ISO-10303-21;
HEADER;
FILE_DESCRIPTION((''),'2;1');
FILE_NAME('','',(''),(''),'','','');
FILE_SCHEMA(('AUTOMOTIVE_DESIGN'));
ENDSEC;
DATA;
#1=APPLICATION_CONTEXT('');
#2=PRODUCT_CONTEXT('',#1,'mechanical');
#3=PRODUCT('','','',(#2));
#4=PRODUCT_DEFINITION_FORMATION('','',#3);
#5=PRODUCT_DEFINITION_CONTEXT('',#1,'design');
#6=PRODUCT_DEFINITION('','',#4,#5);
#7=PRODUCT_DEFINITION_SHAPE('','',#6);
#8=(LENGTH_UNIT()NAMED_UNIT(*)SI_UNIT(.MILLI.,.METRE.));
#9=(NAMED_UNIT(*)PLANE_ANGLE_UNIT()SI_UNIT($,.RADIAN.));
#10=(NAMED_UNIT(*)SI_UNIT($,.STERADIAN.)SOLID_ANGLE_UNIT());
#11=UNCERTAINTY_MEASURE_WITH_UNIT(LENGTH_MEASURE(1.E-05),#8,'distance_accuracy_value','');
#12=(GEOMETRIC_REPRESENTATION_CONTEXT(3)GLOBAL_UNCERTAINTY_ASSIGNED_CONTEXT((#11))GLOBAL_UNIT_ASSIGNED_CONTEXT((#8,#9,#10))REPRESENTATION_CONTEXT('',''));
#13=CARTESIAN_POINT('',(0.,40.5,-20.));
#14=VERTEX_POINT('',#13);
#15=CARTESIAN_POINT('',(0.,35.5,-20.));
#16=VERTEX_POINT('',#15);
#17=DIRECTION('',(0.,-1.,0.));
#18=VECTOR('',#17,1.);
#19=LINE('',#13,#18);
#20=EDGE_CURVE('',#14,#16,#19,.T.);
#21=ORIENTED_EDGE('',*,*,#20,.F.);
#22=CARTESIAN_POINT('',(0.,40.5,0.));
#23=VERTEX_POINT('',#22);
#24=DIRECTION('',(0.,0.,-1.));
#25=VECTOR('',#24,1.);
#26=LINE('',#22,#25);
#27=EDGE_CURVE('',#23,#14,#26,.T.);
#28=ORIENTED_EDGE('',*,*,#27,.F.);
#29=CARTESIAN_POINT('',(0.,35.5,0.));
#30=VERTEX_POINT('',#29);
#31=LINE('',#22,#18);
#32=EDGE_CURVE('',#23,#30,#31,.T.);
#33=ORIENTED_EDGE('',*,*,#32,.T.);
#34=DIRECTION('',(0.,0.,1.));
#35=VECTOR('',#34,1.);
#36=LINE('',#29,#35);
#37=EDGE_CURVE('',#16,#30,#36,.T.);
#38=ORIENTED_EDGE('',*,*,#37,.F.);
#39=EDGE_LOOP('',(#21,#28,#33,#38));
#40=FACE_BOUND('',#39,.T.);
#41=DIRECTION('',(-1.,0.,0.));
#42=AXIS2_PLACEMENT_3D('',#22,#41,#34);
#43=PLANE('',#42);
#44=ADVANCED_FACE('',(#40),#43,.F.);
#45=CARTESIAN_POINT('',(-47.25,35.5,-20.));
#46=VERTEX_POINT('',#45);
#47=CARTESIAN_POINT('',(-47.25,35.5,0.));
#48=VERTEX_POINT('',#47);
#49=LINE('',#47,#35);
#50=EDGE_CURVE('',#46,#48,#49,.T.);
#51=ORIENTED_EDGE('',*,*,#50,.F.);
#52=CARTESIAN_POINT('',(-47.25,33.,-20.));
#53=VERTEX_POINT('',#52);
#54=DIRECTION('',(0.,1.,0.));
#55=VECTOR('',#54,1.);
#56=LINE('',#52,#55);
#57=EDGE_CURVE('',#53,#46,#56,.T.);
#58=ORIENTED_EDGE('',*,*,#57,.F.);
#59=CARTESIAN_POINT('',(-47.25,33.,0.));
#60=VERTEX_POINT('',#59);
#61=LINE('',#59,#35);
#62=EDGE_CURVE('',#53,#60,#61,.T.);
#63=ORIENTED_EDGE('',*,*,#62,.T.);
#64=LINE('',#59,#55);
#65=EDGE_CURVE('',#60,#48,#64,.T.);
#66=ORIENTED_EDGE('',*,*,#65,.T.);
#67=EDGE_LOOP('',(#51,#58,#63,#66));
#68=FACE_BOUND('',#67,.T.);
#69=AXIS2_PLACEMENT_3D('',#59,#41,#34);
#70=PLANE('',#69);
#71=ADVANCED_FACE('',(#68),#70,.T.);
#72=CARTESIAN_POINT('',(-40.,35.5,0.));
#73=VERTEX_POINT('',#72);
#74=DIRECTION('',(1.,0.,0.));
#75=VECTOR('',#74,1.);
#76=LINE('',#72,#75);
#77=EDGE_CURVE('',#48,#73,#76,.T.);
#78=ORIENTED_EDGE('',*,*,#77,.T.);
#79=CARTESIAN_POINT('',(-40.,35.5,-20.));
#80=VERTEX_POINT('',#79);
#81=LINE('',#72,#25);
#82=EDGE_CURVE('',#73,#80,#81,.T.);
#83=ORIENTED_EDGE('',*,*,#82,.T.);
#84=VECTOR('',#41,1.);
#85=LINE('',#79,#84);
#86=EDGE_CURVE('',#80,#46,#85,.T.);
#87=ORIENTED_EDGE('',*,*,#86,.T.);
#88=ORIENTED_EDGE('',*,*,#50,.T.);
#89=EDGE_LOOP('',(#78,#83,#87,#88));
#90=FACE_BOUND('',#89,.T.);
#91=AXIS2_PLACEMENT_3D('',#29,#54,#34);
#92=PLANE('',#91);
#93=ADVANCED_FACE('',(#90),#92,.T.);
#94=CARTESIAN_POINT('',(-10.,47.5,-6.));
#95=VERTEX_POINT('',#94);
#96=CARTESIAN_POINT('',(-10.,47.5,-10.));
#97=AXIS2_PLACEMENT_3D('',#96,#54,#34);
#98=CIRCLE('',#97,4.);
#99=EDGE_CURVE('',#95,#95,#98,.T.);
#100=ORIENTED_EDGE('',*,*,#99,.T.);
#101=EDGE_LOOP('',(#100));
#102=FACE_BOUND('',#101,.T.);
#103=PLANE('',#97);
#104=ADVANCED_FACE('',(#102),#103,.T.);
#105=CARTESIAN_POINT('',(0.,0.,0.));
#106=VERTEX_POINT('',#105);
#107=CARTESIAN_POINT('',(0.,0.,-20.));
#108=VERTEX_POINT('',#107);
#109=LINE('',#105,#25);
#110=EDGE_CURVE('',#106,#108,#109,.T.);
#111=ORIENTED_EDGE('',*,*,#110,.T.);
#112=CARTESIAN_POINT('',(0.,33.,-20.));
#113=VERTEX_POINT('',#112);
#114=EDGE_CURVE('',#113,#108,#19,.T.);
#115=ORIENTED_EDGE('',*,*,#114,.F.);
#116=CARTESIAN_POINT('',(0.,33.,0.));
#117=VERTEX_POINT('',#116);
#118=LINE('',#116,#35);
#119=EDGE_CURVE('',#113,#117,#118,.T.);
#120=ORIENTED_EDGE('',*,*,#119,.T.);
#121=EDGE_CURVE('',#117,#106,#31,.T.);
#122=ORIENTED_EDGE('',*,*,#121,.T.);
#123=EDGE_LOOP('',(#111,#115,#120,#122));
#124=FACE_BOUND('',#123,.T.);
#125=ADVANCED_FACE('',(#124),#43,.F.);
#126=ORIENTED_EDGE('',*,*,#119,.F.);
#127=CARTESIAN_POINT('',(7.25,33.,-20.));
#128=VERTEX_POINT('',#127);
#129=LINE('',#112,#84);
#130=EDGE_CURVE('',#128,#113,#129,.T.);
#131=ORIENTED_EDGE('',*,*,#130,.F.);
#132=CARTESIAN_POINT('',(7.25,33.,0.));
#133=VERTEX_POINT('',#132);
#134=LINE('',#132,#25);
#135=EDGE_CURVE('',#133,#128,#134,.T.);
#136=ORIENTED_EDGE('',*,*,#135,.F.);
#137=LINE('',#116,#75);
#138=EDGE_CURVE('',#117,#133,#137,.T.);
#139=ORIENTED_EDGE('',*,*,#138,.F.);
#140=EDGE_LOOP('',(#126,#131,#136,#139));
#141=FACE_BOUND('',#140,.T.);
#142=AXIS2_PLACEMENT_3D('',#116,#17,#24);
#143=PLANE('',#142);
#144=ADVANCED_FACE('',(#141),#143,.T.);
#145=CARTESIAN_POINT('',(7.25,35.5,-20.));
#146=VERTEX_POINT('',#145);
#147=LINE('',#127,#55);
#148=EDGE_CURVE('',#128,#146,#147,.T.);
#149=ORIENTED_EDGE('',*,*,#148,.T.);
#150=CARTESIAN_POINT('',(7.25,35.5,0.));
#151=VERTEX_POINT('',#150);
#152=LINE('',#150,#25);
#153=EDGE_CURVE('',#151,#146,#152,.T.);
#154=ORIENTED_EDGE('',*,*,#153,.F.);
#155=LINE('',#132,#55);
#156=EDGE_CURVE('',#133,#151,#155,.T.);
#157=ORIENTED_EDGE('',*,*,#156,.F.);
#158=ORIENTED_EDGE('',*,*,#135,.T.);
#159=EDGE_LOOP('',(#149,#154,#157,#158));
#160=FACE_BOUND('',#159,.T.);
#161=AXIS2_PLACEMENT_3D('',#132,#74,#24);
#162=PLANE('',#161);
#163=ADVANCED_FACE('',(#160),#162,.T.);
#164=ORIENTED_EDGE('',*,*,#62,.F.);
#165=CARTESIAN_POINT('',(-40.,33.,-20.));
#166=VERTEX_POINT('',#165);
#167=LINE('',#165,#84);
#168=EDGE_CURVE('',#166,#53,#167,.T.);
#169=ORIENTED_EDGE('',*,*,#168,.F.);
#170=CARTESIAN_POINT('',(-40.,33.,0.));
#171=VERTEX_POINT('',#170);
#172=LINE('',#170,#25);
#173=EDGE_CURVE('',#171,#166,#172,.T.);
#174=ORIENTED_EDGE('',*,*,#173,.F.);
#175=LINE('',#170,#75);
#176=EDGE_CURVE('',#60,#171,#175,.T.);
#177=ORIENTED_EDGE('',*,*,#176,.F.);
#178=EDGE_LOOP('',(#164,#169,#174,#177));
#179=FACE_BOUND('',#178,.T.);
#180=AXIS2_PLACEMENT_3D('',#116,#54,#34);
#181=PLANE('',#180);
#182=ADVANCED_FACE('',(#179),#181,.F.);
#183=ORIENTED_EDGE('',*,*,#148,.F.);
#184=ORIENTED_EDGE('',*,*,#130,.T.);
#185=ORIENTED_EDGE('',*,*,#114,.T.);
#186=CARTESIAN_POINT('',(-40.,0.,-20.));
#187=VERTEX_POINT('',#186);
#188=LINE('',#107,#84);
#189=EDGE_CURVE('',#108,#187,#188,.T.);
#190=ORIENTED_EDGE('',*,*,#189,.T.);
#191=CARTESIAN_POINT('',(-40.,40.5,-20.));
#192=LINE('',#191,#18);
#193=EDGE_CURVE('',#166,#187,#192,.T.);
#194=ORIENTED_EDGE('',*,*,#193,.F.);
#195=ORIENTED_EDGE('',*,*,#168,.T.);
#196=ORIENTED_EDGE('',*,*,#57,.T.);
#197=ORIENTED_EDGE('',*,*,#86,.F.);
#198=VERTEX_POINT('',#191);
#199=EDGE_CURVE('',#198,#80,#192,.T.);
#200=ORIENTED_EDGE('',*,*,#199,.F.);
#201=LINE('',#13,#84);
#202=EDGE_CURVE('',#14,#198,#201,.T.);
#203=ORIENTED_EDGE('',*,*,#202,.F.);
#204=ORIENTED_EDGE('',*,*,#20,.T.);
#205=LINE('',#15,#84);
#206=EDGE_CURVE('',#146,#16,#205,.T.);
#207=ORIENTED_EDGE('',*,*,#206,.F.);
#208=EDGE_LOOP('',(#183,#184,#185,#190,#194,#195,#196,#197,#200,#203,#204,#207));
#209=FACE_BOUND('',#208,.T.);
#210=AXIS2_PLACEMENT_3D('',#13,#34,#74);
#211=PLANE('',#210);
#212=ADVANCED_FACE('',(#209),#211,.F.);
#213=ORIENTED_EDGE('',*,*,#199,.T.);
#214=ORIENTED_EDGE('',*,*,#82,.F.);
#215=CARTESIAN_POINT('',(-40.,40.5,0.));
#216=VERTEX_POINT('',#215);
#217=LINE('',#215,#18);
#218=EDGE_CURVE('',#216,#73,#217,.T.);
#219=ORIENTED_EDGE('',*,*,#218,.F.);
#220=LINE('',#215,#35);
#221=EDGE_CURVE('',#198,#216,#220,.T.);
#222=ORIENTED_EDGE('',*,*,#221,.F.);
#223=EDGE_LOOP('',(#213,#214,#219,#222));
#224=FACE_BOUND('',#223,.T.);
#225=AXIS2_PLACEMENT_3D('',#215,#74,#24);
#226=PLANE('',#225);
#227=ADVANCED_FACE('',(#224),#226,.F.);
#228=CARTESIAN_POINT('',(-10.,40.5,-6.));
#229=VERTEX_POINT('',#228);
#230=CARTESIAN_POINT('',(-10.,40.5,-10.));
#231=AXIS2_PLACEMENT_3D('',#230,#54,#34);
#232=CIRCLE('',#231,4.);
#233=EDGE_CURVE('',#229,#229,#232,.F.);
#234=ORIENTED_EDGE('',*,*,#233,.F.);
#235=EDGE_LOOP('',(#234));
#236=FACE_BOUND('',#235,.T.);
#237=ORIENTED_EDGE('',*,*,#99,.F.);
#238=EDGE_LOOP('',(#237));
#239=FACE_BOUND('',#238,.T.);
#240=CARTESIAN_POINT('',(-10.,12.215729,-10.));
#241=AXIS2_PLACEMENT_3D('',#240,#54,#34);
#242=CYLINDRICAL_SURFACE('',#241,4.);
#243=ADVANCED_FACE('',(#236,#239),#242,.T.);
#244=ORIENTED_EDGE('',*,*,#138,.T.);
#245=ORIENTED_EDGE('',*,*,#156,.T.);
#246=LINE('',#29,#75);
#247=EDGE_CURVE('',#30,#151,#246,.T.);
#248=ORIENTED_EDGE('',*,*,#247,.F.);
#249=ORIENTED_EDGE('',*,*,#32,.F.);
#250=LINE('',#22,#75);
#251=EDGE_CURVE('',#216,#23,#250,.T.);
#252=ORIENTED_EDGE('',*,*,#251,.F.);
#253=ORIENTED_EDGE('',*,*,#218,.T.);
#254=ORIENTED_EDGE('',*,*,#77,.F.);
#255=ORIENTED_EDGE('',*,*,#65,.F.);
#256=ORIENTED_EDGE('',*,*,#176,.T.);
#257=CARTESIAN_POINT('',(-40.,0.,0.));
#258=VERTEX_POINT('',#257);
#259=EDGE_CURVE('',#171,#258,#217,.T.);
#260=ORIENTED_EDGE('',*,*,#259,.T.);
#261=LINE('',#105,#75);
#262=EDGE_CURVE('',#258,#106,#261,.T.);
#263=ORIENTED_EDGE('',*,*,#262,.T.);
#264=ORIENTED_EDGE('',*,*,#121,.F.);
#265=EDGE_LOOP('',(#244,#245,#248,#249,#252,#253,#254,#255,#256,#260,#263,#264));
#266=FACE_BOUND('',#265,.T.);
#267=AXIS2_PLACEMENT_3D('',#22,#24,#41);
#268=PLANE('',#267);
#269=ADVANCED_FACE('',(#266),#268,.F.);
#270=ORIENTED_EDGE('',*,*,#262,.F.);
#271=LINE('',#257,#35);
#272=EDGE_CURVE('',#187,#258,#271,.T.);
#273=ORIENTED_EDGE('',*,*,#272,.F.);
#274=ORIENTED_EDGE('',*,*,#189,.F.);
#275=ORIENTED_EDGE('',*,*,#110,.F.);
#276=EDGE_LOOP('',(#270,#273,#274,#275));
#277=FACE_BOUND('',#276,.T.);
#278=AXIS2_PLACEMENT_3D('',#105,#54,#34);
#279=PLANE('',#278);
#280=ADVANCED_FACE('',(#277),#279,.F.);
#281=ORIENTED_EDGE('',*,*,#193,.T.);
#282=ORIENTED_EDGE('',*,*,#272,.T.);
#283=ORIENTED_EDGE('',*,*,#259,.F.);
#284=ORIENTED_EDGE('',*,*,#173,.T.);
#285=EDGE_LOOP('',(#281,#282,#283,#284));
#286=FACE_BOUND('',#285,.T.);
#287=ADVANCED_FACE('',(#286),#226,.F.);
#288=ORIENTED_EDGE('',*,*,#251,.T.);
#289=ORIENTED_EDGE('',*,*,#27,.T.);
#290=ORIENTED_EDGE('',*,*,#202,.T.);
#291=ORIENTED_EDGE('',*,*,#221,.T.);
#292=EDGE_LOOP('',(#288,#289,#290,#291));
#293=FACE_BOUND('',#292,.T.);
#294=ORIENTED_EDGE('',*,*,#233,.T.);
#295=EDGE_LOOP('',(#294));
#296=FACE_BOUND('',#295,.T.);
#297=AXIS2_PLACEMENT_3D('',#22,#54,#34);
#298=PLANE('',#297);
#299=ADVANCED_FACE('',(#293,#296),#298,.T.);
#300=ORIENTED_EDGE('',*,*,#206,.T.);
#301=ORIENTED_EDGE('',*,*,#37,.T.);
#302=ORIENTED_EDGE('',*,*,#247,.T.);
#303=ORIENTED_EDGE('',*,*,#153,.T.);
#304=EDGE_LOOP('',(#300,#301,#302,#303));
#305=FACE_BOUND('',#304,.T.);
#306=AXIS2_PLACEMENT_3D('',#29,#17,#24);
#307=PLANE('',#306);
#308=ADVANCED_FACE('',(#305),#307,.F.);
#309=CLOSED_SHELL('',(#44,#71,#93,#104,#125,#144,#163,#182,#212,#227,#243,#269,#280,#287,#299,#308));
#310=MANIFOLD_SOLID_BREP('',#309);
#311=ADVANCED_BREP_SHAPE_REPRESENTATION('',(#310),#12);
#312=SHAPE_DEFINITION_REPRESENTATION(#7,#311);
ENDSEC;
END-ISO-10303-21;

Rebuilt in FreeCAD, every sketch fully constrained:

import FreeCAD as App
import Part
import Sketcher

doc = App.newDocument("Part")
body = doc.addObject("PartDesign::Body", "Body")

# Sketch on XZ plane
sketch1 = body.newObject("Sketcher::SketchObject", "Sketch")
sketch1.AttachmentSupport = (doc.getObject("XZ_Plane"), [""])
sketch1.MapMode = "FlatFace"
sketch1.addGeometry(Part.LineSegment(App.Vector(-40, -20, 0), App.Vector(-40, 0, 0)), False)
sketch1.addGeometry(Part.LineSegment(App.Vector(-40, 0, 0), App.Vector(0, 0, 0)), False)
sketch1.addGeometry(Part.LineSegment(App.Vector(0, 0, 0), App.Vector(0, -20, 0)), False)
sketch1.addGeometry(Part.LineSegment(App.Vector(0, -20, 0), App.Vector(-40, -20, 0)), False)
sketch1.addConstraint(Sketcher.Constraint("Coincident", 0, 2, 1, 1))
sketch1.addConstraint(Sketcher.Constraint("Coincident", 1, 2, 2, 1))
sketch1.addConstraint(Sketcher.Constraint("Coincident", 2, 2, 3, 1))
sketch1.addConstraint(Sketcher.Constraint("Coincident", 3, 2, 0, 1))
sketch1.addConstraint(Sketcher.Constraint("Vertical", 0))
sketch1.addConstraint(Sketcher.Constraint("Horizontal", 1))
sketch1.addConstraint(Sketcher.Constraint("Vertical", 2))
sketch1.addConstraint(Sketcher.Constraint("Horizontal", 3))
sketch1.addConstraint(Sketcher.Constraint("Coincident", 1, 2, -1, 1))
sketch1.addConstraint(Sketcher.Constraint("DistanceX", 1, 1, 1, 2, 40.0))
sketch1.addConstraint(Sketcher.Constraint("DistanceY", 0, 1, 0, 2, 20.0))
pad1 = body.newObject("PartDesign::Pad", "Pad")
pad1.Profile = sketch1
pad1.Length = 40.5
pad1.Reversed = True

# Sketch on XZ plane
sketch2 = body.newObject("Sketcher::SketchObject", "Sketch001")
sketch2.AttachmentSupport = (doc.getObject("XZ_Plane"), [""])
sketch2.MapMode = "FlatFace"
sketch2.AttachmentOffset = App.Placement(App.Vector(0, 0, -35.5), App.Rotation())
sketch2.addGeometry(Part.LineSegment(App.Vector(-47, -20, 0), App.Vector(-47, 0, 0)), False)
sketch2.addGeometry(Part.LineSegment(App.Vector(-47, 0, 0), App.Vector(-40, 0, 0)), False)
sketch2.addGeometry(Part.LineSegment(App.Vector(-40, 0, 0), App.Vector(-40, -20, 0)), False)
sketch2.addGeometry(Part.LineSegment(App.Vector(-40, -20, 0), App.Vector(-47, -20, 0)), False)
sketch2.addGeometry(Part.LineSegment(App.Vector(0, -20, 0), App.Vector(0, 0, 0)), False)
sketch2.addGeometry(Part.LineSegment(App.Vector(0, 0, 0), App.Vector(7, 0, 0)), False)
sketch2.addGeometry(Part.LineSegment(App.Vector(7, 0, 0), App.Vector(7, -20, 0)), False)
sketch2.addGeometry(Part.LineSegment(App.Vector(7, -20, 0), App.Vector(0, -20, 0)), False)
sketch2.addConstraint(Sketcher.Constraint("Coincident", 0, 2, 1, 1))
sketch2.addConstraint(Sketcher.Constraint("Coincident", 1, 2, 2, 1))
sketch2.addConstraint(Sketcher.Constraint("Coincident", 2, 2, 3, 1))
sketch2.addConstraint(Sketcher.Constraint("Coincident", 3, 2, 0, 1))
sketch2.addConstraint(Sketcher.Constraint("Coincident", 4, 2, 5, 1))
sketch2.addConstraint(Sketcher.Constraint("Coincident", 5, 2, 6, 1))
sketch2.addConstraint(Sketcher.Constraint("Coincident", 6, 2, 7, 1))
sketch2.addConstraint(Sketcher.Constraint("Coincident", 7, 2, 4, 1))
sketch2.addConstraint(Sketcher.Constraint("Vertical", 0))
sketch2.addConstraint(Sketcher.Constraint("Horizontal", 1))
sketch2.addConstraint(Sketcher.Constraint("Vertical", 2))
sketch2.addConstraint(Sketcher.Constraint("Horizontal", 3))
sketch2.addConstraint(Sketcher.Constraint("Vertical", 4))
sketch2.addConstraint(Sketcher.Constraint("Horizontal", 5))
sketch2.addConstraint(Sketcher.Constraint("Vertical", 6))
sketch2.addConstraint(Sketcher.Constraint("Horizontal", 7))
sketch2.addConstraint(Sketcher.Constraint("Coincident", 4, 2, -1, 1))
sketch2.addConstraint(Sketcher.Constraint("PointOnObject", 0, 2, -1))
sketch2.addConstraint(Sketcher.Constraint("Horizontal", 3, 2, 6, 2))
sketch2.addConstraint(Sketcher.Constraint("Equal", 3, 5))
sketch2.addConstraint(Sketcher.Constraint("DistanceY", 0, 1, 0, 2, 20.0))
sketch2.addConstraint(Sketcher.Constraint("DistanceX", 1, 2, -1, 1, 40.0))
sketch2.addConstraint(Sketcher.Constraint("DistanceX", 1, 1, 1, 2, 7.25))
pad2 = body.newObject("PartDesign::Pad", "Pad001")
pad2.Profile = sketch2
pad2.Length = 2.5

# Sketch on XZ plane
sketch3 = body.newObject("Sketcher::SketchObject", "Sketch002")
sketch3.AttachmentSupport = (doc.getObject("XZ_Plane"), [""])
sketch3.MapMode = "FlatFace"
sketch3.AttachmentOffset = App.Placement(App.Vector(0, 0, -40.5), App.Rotation())
sketch3.addGeometry(Part.Circle(App.Vector(-10, -10, 0), App.Vector(0, 0, 1), 10), False)
sketch3.addConstraint(Sketcher.Constraint("Diameter", 0, 20.0))
sketch3.addConstraint(Sketcher.Constraint("DistanceX", 0, 3, -1, 1, 10.0))
sketch3.addConstraint(Sketcher.Constraint("DistanceY", 0, 3, -1, 1, 10.0))
pad3 = body.newObject("PartDesign::Pad", "Pad002")
pad3.Profile = sketch3
pad3.Length = 7
pad3.Reversed = True

# Sketch on XZ plane
sketch4 = body.newObject("Sketcher::SketchObject", "Sketch003")
sketch4.AttachmentSupport = (doc.getObject("XZ_Plane"), [""])
sketch4.MapMode = "FlatFace"
sketch4.AttachmentOffset = App.Placement(App.Vector(0, 0, -47.5), App.Rotation())
sketch4.addGeometry(Part.Circle(App.Vector(-10, -10, 0), App.Vector(0, 0, 1), 10), False)
sketch4.addGeometry(Part.Circle(App.Vector(-10, -10, 0), App.Vector(0, 0, 1), 4), False)
sketch4.addConstraint(Sketcher.Constraint("Coincident", 1, 3, 0, 3))
sketch4.addConstraint(Sketcher.Constraint("Diameter", 0, 20.0))
sketch4.addConstraint(Sketcher.Constraint("Diameter", 1, 8.0))
sketch4.addConstraint(Sketcher.Constraint("DistanceX", 0, 3, -1, 1, 10.0))
sketch4.addConstraint(Sketcher.Constraint("DistanceY", 0, 3, -1, 1, 10.0))
pocket1 = body.newObject("PartDesign::Pocket", "Pocket")
pocket1.Profile = sketch4
pocket1.Length = 7
pocket1.Reversed = True

doc.recompute()
